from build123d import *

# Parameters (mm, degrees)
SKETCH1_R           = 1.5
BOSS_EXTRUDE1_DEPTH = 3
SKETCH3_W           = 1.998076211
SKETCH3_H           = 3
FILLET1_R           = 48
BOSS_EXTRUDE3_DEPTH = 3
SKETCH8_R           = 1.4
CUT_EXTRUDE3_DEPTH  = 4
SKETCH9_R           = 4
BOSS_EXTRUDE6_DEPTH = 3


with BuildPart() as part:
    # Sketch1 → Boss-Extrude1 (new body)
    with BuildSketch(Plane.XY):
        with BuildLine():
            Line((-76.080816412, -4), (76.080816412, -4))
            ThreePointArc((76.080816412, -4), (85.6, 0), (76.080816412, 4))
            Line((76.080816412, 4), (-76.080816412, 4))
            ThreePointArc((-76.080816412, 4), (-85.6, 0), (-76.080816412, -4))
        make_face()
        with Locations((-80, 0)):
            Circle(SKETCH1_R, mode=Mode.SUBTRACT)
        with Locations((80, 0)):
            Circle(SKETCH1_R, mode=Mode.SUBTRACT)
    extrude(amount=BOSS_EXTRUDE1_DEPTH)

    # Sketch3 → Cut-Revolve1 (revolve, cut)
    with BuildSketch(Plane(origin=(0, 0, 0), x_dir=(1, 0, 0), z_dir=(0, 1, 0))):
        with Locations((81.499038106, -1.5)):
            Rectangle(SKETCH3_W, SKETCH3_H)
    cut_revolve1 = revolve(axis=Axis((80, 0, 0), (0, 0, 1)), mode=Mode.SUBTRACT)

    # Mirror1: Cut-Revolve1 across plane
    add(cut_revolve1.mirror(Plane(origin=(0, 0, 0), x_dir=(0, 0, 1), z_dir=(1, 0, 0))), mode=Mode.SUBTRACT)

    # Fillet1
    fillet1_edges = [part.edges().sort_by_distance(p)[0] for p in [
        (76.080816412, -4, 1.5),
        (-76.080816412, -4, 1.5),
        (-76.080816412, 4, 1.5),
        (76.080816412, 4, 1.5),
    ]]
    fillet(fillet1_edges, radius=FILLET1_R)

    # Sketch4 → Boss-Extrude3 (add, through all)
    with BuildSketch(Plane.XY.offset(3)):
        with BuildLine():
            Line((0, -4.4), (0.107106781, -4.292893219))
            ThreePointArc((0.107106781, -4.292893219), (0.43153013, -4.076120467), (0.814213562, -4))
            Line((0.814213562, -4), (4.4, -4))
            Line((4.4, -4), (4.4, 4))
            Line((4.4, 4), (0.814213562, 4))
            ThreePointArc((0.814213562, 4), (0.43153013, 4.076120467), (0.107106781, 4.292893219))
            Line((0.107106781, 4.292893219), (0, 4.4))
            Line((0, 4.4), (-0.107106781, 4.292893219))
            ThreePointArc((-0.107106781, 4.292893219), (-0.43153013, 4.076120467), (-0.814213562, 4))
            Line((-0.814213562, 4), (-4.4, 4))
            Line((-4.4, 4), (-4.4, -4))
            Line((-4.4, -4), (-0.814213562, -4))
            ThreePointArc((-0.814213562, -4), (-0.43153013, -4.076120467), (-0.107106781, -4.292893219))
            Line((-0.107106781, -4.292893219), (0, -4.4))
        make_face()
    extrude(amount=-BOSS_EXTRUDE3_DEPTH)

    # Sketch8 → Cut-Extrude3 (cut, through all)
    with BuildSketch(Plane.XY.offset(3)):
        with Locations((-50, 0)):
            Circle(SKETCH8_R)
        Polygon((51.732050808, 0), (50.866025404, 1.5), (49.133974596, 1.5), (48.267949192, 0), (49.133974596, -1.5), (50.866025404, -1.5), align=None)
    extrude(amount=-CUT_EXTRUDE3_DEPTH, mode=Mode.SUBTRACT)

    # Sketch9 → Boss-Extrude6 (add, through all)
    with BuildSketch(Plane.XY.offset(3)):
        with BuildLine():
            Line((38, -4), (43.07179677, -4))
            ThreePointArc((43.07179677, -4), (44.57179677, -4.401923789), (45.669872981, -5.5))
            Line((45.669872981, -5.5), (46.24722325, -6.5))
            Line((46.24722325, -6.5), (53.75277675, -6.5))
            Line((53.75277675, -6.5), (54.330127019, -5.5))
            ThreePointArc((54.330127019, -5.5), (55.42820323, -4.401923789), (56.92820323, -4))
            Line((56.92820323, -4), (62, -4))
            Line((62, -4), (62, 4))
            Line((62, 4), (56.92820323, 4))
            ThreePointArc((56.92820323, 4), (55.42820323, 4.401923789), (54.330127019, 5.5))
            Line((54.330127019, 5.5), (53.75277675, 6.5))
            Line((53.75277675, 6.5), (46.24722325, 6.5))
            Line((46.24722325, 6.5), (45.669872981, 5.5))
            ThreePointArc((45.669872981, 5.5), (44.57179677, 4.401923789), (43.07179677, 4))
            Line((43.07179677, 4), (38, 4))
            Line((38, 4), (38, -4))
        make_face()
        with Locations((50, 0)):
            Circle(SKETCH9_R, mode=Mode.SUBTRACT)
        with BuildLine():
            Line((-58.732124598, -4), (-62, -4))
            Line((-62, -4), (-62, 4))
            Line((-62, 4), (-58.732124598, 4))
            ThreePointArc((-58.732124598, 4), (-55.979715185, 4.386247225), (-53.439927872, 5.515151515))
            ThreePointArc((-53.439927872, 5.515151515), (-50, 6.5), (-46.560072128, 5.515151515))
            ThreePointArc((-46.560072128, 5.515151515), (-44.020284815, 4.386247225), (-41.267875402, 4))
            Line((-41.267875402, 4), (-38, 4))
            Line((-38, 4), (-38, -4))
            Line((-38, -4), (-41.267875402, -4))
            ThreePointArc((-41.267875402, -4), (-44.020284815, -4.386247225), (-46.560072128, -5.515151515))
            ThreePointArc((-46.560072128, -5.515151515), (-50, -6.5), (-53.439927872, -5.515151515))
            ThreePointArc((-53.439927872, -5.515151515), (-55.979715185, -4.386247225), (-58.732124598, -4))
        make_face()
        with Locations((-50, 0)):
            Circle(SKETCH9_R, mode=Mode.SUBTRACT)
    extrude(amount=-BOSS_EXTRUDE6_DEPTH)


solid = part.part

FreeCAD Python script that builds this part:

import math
import FreeCAD as App
import Part
import Sketcher

V = App.Vector
Q = App.Units.Quantity


def edges_at(feature, points):
    """Names of the edges that pass closest to the given points."""
    edges = feature.Shape.Edges
    near = lambda p: min(range(len(edges)), key=lambda i: edges[i].distToShape(Part.Vertex(*p))[0])
    return sorted({f"Edge{near(p) + 1}" for p in points})


def add_polygon(sketch, points):
    """Adds a closed chain of lines whose ends are joined by coincident constraints."""
    first, n = sketch.GeometryCount, len(points)
    for a, b in zip(points, points[1:] + points[:1]):
        sketch.addGeometry(Part.LineSegment(App.Vector(*a, 0), App.Vector(*b, 0)), False)
    for i in range(n):
        sketch.addConstraint(Sketcher.Constraint("Coincident", first + i, 2, first + (i + 1) % n, 1))

doc = App.newDocument("Part")
body = doc.addObject("PartDesign::Body", "Body")

# Sketch on XY plane
sketch1 = body.newObject("Sketcher::SketchObject", "Sketch")
sketch1.AttachmentSupport = (doc.getObject("XY_Plane"), [""])
sketch1.MapMode = "FlatFace"
sketch1.addGeometry([
    Part.LineSegment(V(-76.1, -4, 0), V(76.1, -4, 0)),  # 0
    Part.ArcOfCircle(Part.Circle(V(80, 0, 0), V(0, 0, 1), 5.6), math.radians(-134), math.radians(134)),  # 1
    Part.LineSegment(V(76.1, 4, 0), V(-76.1, 4, 0)),  # 2
    Part.ArcOfCircle(Part.Circle(V(-80, 0, 0), V(0, 0, 1), 5.6), math.radians(46), math.radians(314)),  # 3
    Part.Circle(V(-80, 0, 0), V(0, 0, 1), 1.5),  # 4
    Part.Circle(V(80, 0, 0), V(0, 0, 1), 1.5),  # 5
], False)
sketch1.addConstraint([
    Sketcher.Constraint("Coincident", 0, 2, 1, 1),
    Sketcher.Constraint("Coincident", 1, 2, 2, 1),
    Sketcher.Constraint("Coincident", 2, 2, 3, 1),
    Sketcher.Constraint("Coincident", 3, 2, 0, 1),
    Sketcher.Constraint("Horizontal", 0),
    Sketcher.Constraint("Horizontal", 2),
    Sketcher.Constraint("Coincident", 4, 3, 3, 3),
    Sketcher.Constraint("Coincident", 5, 3, 1, 3),
    Sketcher.Constraint("Equal", 1, 3),
    Sketcher.Constraint("Equal", 4, 5),
    Sketcher.Constraint("Symmetric", 1, 3, 3, 3, -1, 1),
    Sketcher.Constraint("Symmetric", 0, 2, 1, 2, -1),
    Sketcher.Constraint("Diameter", 4, Q("3 mm")),
    Sketcher.Constraint("Radius", 1, Q("5.6 mm")),
    Sketcher.Constraint("DistanceX", -1, 1, 1, 3, Q("80 mm")),
    Sketcher.Constraint("DistanceY", 0, 2, -1, 1, Q("4 mm")),
])
pad1 = body.newObject("PartDesign::Pad", "Pad")
pad1.Profile = sketch1
pad1.Length = 3

# Sketch on XZ plane
sketch2 = body.newObject("Sketcher::SketchObject", "Sketch001")
sketch2.AttachmentSupport = (doc.getObject("XZ_Plane"), [""])
sketch2.MapMode = "FlatFace"
add_polygon(sketch2, [(80.5, 0), (80.5, 3), (82.5, 3), (82.5, 0)])  # lines 0-3
sketch2.addGeometry(Part.LineSegment(V(80, 0, 0), V(80, 3, 0)), True)  # axis
sketch2.addConstraint([
    Sketcher.Constraint("Vertical", 0),
    Sketcher.Constraint("Horizontal", 1),
    Sketcher.Constraint("Vertical", 2),
    Sketcher.Constraint("Horizontal", 3),
    Sketcher.Constraint("Vertical", 4),
    Sketcher.Constraint("PointOnObject", 2, 2, -1),
    Sketcher.Constraint("PointOnObject", 4, 1, -1),
    Sketcher.Constraint("Horizontal", 1, 2, 4, 2),
    Sketcher.Constraint("DistanceY", 0, 1, 0, 2, Q("3 mm")),
    Sketcher.Constraint("DistanceX", -1, 1, 4, 1, Q("80 mm")),
    Sketcher.Constraint("DistanceX", -1, 1, 0, 2, Q("80.5 mm")),
    Sketcher.Constraint("DistanceX", 1, 1, 1, 2, Q("1.998076 mm")),
])
groove = body.newObject("PartDesign::Groove", "Groove")
groove.Profile = sketch2
groove.ReferenceAxis = (sketch2, ["Axis0"])
groove.Angle = 360
doc.recompute()

mirrored = body.newObject("PartDesign::Mirrored", "Mirrored")
mirrored.Originals = [groove]
mirrored.MirrorPlane = (doc.getObject("YZ_Plane"), [""])
body.Tip = mirrored
doc.recompute()

fillet = body.newObject("PartDesign::Fillet", "Fillet")
fillet.Base = (mirrored, edges_at(mirrored, [
    (76.081, -4, 1.5),
    (-76.081, -4, 1.5),
    (-76.081, 4, 1.5),
    (76.081, 4, 1.5),
]))
fillet.Radius = 48

# Sketch on XY plane
sketch3 = body.newObject("Sketcher::SketchObject", "Sketch002")
sketch3.AttachmentSupport = (doc.getObject("XY_Plane"), [""])
sketch3.MapMode = "FlatFace"
sketch3.AttachmentOffset = App.Placement(V(0, 0, 3), App.Rotation())
sketch3.addGeometry([
    Part.LineSegment(V(0, -4.4, 0), V(0.11, -4.29, 0)),  # 0
    Part.ArcOfCircle(Part.Circle(V(0.81, -5, 0), V(0, 0, 1), 1), math.radians(90), math.radians(135)),  # 1
    Part.LineSegment(V(0.81, -4, 0), V(4.4, -4, 0)),  # 2
    Part.LineSegment(V(4.4, -4, 0), V(4.4, 4, 0)),  # 3
    Part.LineSegment(V(4.4, 4, 0), V(0.81, 4, 0)),  # 4
    Part.ArcOfCircle(Part.Circle(V(0.81, 5, 0), V(0, 0, 1), 1), math.radians(-135), math.radians(-90)),  # 5
    Part.LineSegment(V(0.11, 4.29, 0), V(0, 4.4, 0)),  # 6
    Part.LineSegment(V(0, 4.4, 0), V(-0.11, 4.29, 0)),  # 7
    Part.ArcOfCircle(Part.Circle(V(-0.81, 5, 0), V(0, 0, 1), 1), math.radians(-90), math.radians(-45)),  # 8
    Part.LineSegment(V(-0.81, 4, 0), V(-4.4, 4, 0)),  # 9
    Part.LineSegment(V(-4.4, 4, 0), V(-4.4, -4, 0)),  # 10
    Part.LineSegment(V(-4.4, -4, 0), V(-0.81, -4, 0)),  # 11
    Part.ArcOfCircle(Part.Circle(V(-0.81, -5, 0), V(0, 0, 1), 1), math.radians(45), math.radians(90)),  # 12
    Part.LineSegment(V(-0.11, -4.29, 0), V(0, -4.4, 0)),  # 13
], False)
sketch3.addConstraint([
    Sketcher.Constraint("Tangent", 0, 2, 1, 2),
    Sketcher.Constraint("Tangent", 1, 1, 2, 1),
    Sketcher.Constraint("Coincident", 2, 2, 3, 1),
    Sketcher.Constraint("Coincident", 3, 2, 4, 1),
    Sketcher.Constraint("Tangent", 4, 2, 5, 2),
    Sketcher.Constraint("Tangent", 5, 1, 6, 1),
    Sketcher.Constraint("Coincident", 6, 2, 7, 1),
    Sketcher.Constraint("Tangent", 7, 2, 8, 2),
    Sketcher.Constraint("Tangent", 8, 1, 9, 1),
    Sketcher.Constraint("Coincident", 9, 2, 10, 1),
    Sketcher.Constraint("Coincident", 10, 2, 11, 1),
    Sketcher.Constraint("Tangent", 11, 2, 12, 2),
    Sketcher.Constraint("Tangent", 12, 1, 13, 1),
    Sketcher.Constraint("Coincident", 13, 2, 0, 1),
    Sketcher.Constraint("Horizontal", 2),
    Sketcher.Constraint("Vertical", 3),
    Sketcher.Constraint("Horizontal", 4),
    Sketcher.Constraint("Horizontal", 9),
    Sketcher.Constraint("Vertical", 10),
    Sketcher.Constraint("Horizontal", 11),
    Sketcher.Constraint("Equal", 1, 5),
    Sketcher.Constraint("Equal", 5, 8),
    Sketcher.Constraint("Equal", 8, 12),
    Sketcher.Constraint("Symmetric", 1, 3, 8, 3, -1, 1),
    Sketcher.Constraint("Symmetric", 5, 3, 12, 3, -1, 1),
    Sketcher.Constraint("Symmetric", 6, 2, 13, 2, -1, 1),
    Sketcher.Constraint("Symmetric", 5, 3, 8, 3, -2),
    Sketcher.Constraint("PointOnObject", 6, 2, -2),
    Sketcher.Constraint("Perpendicular", 0, 6),
    Sketcher.Constraint("Equal", 4, 9),
    Sketcher.Constraint("Radius", 1, Q("1 mm")),
    Sketcher.Constraint("DistanceY", 3, 1, 3, 2, Q("8 mm")),
    Sketcher.Constraint("DistanceX", -1, 1, 2, 2, Q("4.4 mm")),
    Sketcher.Constraint("DistanceY", -1, 1, 6, 2, Q("4.4 mm")),
])
pad2 = body.newObject("PartDesign::Pad", "Pad001")
pad2.Profile = sketch3
pad2.Type = "UpToLast"
pad2.Reversed = True

# Sketch on XY plane
sketch4 = body.newObject("Sketcher::SketchObject", "Sketch003")
sketch4.AttachmentSupport = (doc.getObject("XY_Plane"), [""])
sketch4.MapMode = "FlatFace"
sketch4.AttachmentOffset = App.Placement(V(0, 0, 3), App.Rotation())
sketch4.addGeometry(Part.Circle(V(-50, 0, 0), V(0, 0, 1), 1.4), False)  # 0
add_polygon(sketch4, [(51.7, 0), (50.9, 1.5), (49.1, 1.5), (48.3, 0), (49.1, -1.5), (50.9, -1.5)])  # lines 1-6
sketch4.addConstraint([
    Sketcher.Constraint("Horizontal", 2),
    Sketcher.Constraint("Horizontal", 5),
    Sketcher.Constraint("Symmetric", 2, 2, 4, 2, -1),
    Sketcher.Constraint("PointOnObject", 0, 3, -1),
    Sketcher.Constraint("PointOnObject", 3, 2, -1),
    Sketcher.Constraint("PointOnObject", 6, 2, -1),
    Sketcher.Constraint("Parallel", 1, 4),
    Sketcher.Constraint("Parallel", 3, 6),
    Sketcher.Constraint("Diameter", 0, Q("2.8 mm")),
    Sketcher.Constraint("Angle", 1, Q("120 deg")),
    Sketcher.Constraint("DistanceX", 0, 3, -1, 1, Q("50 mm")),
    Sketcher.Constraint("DistanceY", 4, 2, 2, 2, Q("3 mm")),
    Sketcher.Constraint("DistanceX", 2, 2, 2, 1, Q("1.732051 mm")),
    Sketcher.Constraint("DistanceX", -1, 1, 3, 2, Q("48.267949 mm")),
])
pocket1 = body.newObject("PartDesign::Pocket", "Pocket")
pocket1.Profile = sketch4
pocket1.Type = "ThroughAll"

# Sketch on XY plane
sketch5 = body.newObject("Sketcher::SketchObject", "Sketch004")
sketch5.AttachmentSupport = (doc.getObject("XY_Plane"), [""])
sketch5.MapMode = "FlatFace"
sketch5.AttachmentOffset = App.Placement(V(0, 0, 3), App.Rotation())
sketch5.addGeometry([
    Part.LineSegment(V(38, -4, 0), V(43.1, -4, 0)),  # 0
    Part.ArcOfCircle(Part.Circle(V(43.1, -7, 0), V(0, 0, 1), 3), math.radians(30), math.radians(90)),  # 1
    Part.LineSegment(V(45.7, -5.5, 0), V(46.2, -6.5, 0)),  # 2
    Part.LineSegment(V(46.2, -6.5, 0), V(53.8, -6.5, 0)),  # 3
    Part.LineSegment(V(53.8, -6.5, 0), V(54.3, -5.5, 0)),  # 4
    Part.ArcOfCircle(Part.Circle(V(56.9, -7, 0), V(0, 0, 1), 3), math.radians(90), math.radians(150)),  # 5
    Part.LineSegment(V(56.9, -4, 0), V(62, -4, 0)),  # 6
    Part.LineSegment(V(62, -4, 0), V(62, 4, 0)),  # 7
    Part.LineSegment(V(62, 4, 0), V(56.9, 4, 0)),  # 8
    Part.ArcOfCircle(Part.Circle(V(56.9, 7, 0), V(0, 0, 1), 3), math.radians(-150), math.radians(-90)),  # 9
    Part.LineSegment(V(54.3, 5.5, 0), V(53.8, 6.5, 0)),  # 10
    Part.LineSegment(V(53.8, 6.5, 0), V(46.2, 6.5, 0)),  # 11
    Part.LineSegment(V(46.2, 6.5, 0), V(45.7, 5.5, 0)),  # 12
    Part.ArcOfCircle(Part.Circle(V(43.1, 7, 0), V(0, 0, 1), 3), math.radians(-90), math.radians(-30)),  # 13
    Part.LineSegment(V(43.1, 4, 0), V(38, 4, 0)),  # 14
    Part.LineSegment(V(38, 4, 0), V(38, -4, 0)),  # 15
    Part.Circle(V(50, 0, 0), V(0, 0, 1), 4),  # 16
    Part.LineSegment(V(-62, -4, 0), V(-58.7, -4, 0)),  # 17
    Part.ArcOfCircle(Part.Circle(V(-58.7, -14, 0), V(0, 0, 1), 10), math.radians(58), math.radians(90)),  # 18
    Part.ArcOfCircle(Part.Circle(V(-50, 0, 0), V(0, 0, 1), 6.5), math.radians(-122), math.radians(-58)),  # 19
    Part.ArcOfCircle(Part.Circle(V(-41.3, -14, 0), V(0, 0, 1), 10), math.radians(90), math.radians(122)),  # 20
    Part.LineSegment(V(-41.3, -4, 0), V(-38, -4, 0)),  # 21
    Part.LineSegment(V(-38, -4, 0), V(-38, 4, 0)),  # 22
    Part.LineSegment(V(-38, 4, 0), V(-41.3, 4, 0)),  # 23
    Part.ArcOfCircle(Part.Circle(V(-41.3, 14, 0), V(0, 0, 1), 10), math.radians(-122), math.radians(-90)),  # 24
    Part.ArcOfCircle(Part.Circle(V(-50, 0, 0), V(0, 0, 1), 6.5), math.radians(58), math.radians(122)),  # 25
    Part.ArcOfCircle(Part.Circle(V(-58.7, 14, 0), V(0, 0, 1), 10), math.radians(-90), math.radians(-58)),  # 26
    Part.LineSegment(V(-58.7, 4, 0), V(-62, 4, 0)),  # 27
    Part.LineSegment(V(-62, 4, 0), V(-62, -4, 0)),  # 28
    Part.Circle(V(-50, 0, 0), V(0, 0, 1), 4),  # 29
], False)
sketch5.addConstraint([
    Sketcher.Constraint("Tangent", 0, 2, 1, 2),
    Sketcher.Constraint("Tangent", 1, 1, 2, 1),
    Sketcher.Constraint("Coincident", 2, 2, 3, 1),
    Sketcher.Constraint("Coincident", 3, 2, 4, 1),
    Sketcher.Constraint("Tangent", 4, 2, 5, 2),
    Sketcher.Constraint("Tangent", 5, 1, 6, 1),
    Sketcher.Constraint("Coincident", 6, 2, 7, 1),
    Sketcher.Constraint("Coincident", 7, 2, 8, 1),
    Sketcher.Constraint("Tangent", 8, 2, 9, 2),
    Sketcher.Constraint("Tangent", 9, 1, 10, 1),
    Sketcher.Constraint("Coincident", 10, 2, 11, 1),
    Sketcher.Constraint("Coincident", 11, 2, 12, 1),
    Sketcher.Constraint("Tangent", 12, 2, 13, 2),
    Sketcher.Constraint("Tangent", 13, 1, 14, 1),
    Sketcher.Constraint("Coincident", 14, 2, 15, 1),
    Sketcher.Constraint("Coincident", 15, 2, 0, 1),
    Sketcher.Constraint("Tangent", 17, 2, 18, 2),
    Sketcher.Constraint("Tangent", 18, 1, 19, 1),
    Sketcher.Constraint("Tangent", 19, 2, 20, 2),
    Sketcher.Constraint("Tangent", 20, 1, 21, 1),
    Sketcher.Constraint("Coincident", 21, 2, 22, 1),
    Sketcher.Constraint("Coincident", 22, 2, 23, 1),
    Sketcher.Constraint("Tangent", 23, 2, 24, 2),
    Sketcher.Constraint("Tangent", 24, 1, 25, 1),
    Sketcher.Constraint("Tangent", 25, 2, 26, 2),
    Sketcher.Constraint("Tangent", 26, 1, 27, 1),
    Sketcher.Constraint("Coincident", 27, 2, 28, 1),
    Sketcher.Constraint("Coincident", 28, 2, 17, 1),
    Sketcher.Constraint("Horizontal", 0),
    Sketcher.Constraint("Horizontal", 3),
    Sketcher.Constraint("Horizontal", 6),
    Sketcher.Constraint("Vertical", 7),
    Sketcher.Constraint("Horizontal", 8),
    Sketcher.Constraint("Horizontal", 11),
    Sketcher.Constraint("Horizontal", 14),
    Sketcher.Constraint("Vertical", 15),
    Sketcher.Constraint("Horizontal", 17),
    Sketcher.Constraint("Horizontal", 21),
    Sketcher.Constraint("Vertical", 22),
    Sketcher.Constraint("Horizontal", 23),
    Sketcher.Constraint("Horizontal", 27),
    Sketcher.Constraint("Vertical", 28),
    Sketcher.Constraint("Coincident", 25, 3, 19, 3),
    Sketcher.Constraint("Coincident", 29, 3, 19, 3),
    Sketcher.Constraint("Equal", 1, 5),
    Sketcher.Constraint("Equal", 5, 9),
    Sketcher.Constraint("Equal", 9, 13),
    Sketcher.Constraint("Equal", 18, 20),
    Sketcher.Constraint("Equal", 20, 24),
    Sketcher.Constraint("Equal", 19, 25),
    Sketcher.Constraint("Equal", 24, 26),
    Sketcher.Constraint("Equal", 16, 29),
    Sketcher.Constraint("Symmetric", 16, 3, 19, 3, -1, 1),
    Sketcher.Constraint("Symmetric", 14, 2, 21, 2, -1, 1),
    Sketcher.Constraint("Symmetric", 6, 2, 27, 2, -1, 1),
    Sketcher.Constraint("Symmetric", 5, 3, 9, 3, -1),
    Sketcher.Constraint("Symmetric", 1, 3, 13, 3, -1),
    Sketcher.Constraint("Symmetric", 20, 3, 24, 3, -1),
    Sketcher.Constraint("Symmetric", 3, 2, 10, 2, -1),
    Sketcher.Constraint("Parallel", 2, 10),
    Sketcher.Constraint("Parallel", 4, 12),
    Sketcher.Constraint("Horizontal", 1, 3, 5, 3),
    Sketcher.Constraint("Horizontal", 18, 3, 20, 3),
    Sketcher.Constraint("Equal", 0, 6),
    Sketcher.Constraint("Equal", 17, 21),
    Sketcher.Constraint("Diameter", 16, Q("8 mm")),
    Sketcher.Constraint("Radius", 1, Q("3 mm")),
    Sketcher.Constraint("Radius", 18, Q("10 mm")),
    Sketcher.Constraint("Radius", 19, Q("6.5 mm")),
    Sketcher.Constraint("DistanceY", 7, 1, 7, 2, Q("8 mm")),
    Sketcher.Constraint("Angle", 2, Q("-60 deg")),
    Sketcher.Constraint("DistanceX", -1, 1, 16, 3, Q("50 mm")),
    Sketcher.Constraint("DistanceX", -1, 1, 6, 2, Q("62 mm")),
    Sketcher.Constraint("DistanceY", 2, 2, 1, 1, Q("1 mm")),
    Sketcher.Constraint("DistanceX", 0, 1, 0, 2, Q("5.071797 mm")),
])
pad3 = body.newObject("PartDesign::Pad", "Pad002")
pad3.Profile = sketch5
pad3.Type = "UpToLast"
pad3.Reversed = True

doc.recompute()
